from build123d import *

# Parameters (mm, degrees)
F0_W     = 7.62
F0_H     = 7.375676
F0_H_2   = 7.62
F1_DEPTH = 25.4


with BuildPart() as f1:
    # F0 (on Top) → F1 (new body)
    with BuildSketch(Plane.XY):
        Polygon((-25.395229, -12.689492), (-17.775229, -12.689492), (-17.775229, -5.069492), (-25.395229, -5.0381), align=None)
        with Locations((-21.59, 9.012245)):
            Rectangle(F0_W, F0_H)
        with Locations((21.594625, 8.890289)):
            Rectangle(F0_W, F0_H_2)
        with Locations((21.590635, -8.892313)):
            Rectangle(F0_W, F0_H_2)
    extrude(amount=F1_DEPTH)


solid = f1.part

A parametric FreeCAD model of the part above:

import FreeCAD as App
import Part
import Sketcher
from FreeCAD import Vector
Q = App.Units.Quantity

doc = App.newDocument("Part")
params = doc.addObject("Spreadsheet::Sheet", "Params")
for row, (alias, value) in enumerate([
    ("sketch1_width", "0.3 in"),
    ("pad1_length", "1 in"),
], start=1):
    params.set(f"A{row}", alias)
    params.set(f"B{row}", "=" + value)
    params.setAlias(f"B{row}", alias)

body = doc.addObject("PartDesign::Body", "Body")
body.AllowCompound = True

# Sketch on XY plane
sketch1 = body.newObject("Sketcher::SketchObject", "Sketch")
sketch1.AttachmentSupport = (doc.getObject("XY_Plane"), [""])
sketch1.MapMode = "FlatFace"
sketch1.addGeometry([
    Part.LineSegment(Vector(-25, -13, 0), Vector(-18, -13, 0)),  # 0
    Part.LineSegment(Vector(-18, -13, 0), Vector(-18, -5, 0)),  # 1
    Part.LineSegment(Vector(-18, -5, 0), Vector(-25, -5, 0)),  # 2
    Part.LineSegment(Vector(-25, -5, 0), Vector(-25, -13, 0)),  # 3
    Part.LineSegment(Vector(-25, 13, 0), Vector(-25, 5, 0)),  # 4
    Part.LineSegment(Vector(-25, 5, 0), Vector(-18, 5, 0)),  # 5
    Part.LineSegment(Vector(-18, 5, 0), Vector(-18, 13, 0)),  # 6
    Part.LineSegment(Vector(-18, 13, 0), Vector(-25, 13, 0)),  # 7
    Part.LineSegment(Vector(18, 13, 0), Vector(18, 5, 0)),  # 8
    Part.LineSegment(Vector(18, 5, 0), Vector(25, 5, 0)),  # 9
    Part.LineSegment(Vector(25, 5, 0), Vector(25, 13, 0)),  # 10
    Part.LineSegment(Vector(25, 13, 0), Vector(18, 13, 0)),  # 11
    Part.LineSegment(Vector(18, -5, 0), Vector(18, -13, 0)),  # 12
    Part.LineSegment(Vector(18, -13, 0), Vector(25, -13, 0)),  # 13
    Part.LineSegment(Vector(25, -13, 0), Vector(25, -5, 0)),  # 14
    Part.LineSegment(Vector(25, -5, 0), Vector(18, -5, 0)),  # 15
], False)
sketch1.addConstraint([
    Sketcher.Constraint("Coincident", 0, 2, 1, 1),
    Sketcher.Constraint("Coincident", 1, 2, 2, 1),
    Sketcher.Constraint("Coincident", 2, 2, 3, 1),
    Sketcher.Constraint("Coincident", 3, 2, 0, 1),
    Sketcher.Constraint("Coincident", 4, 2, 5, 1),
    Sketcher.Constraint("Coincident", 5, 2, 6, 1),
    Sketcher.Constraint("Coincident", 6, 2, 7, 1),
    Sketcher.Constraint("Coincident", 7, 2, 4, 1),
    Sketcher.Constraint("Coincident", 8, 2, 9, 1),
    Sketcher.Constraint("Coincident", 9, 2, 10, 1),
    Sketcher.Constraint("Coincident", 10, 2, 11, 1),
    Sketcher.Constraint("Coincident", 11, 2, 8, 1),
    Sketcher.Constraint("Coincident", 12, 2, 13, 1),
    Sketcher.Constraint("Coincident", 13, 2, 14, 1),
    Sketcher.Constraint("Coincident", 14, 2, 15, 1),
    Sketcher.Constraint("Coincident", 15, 2, 12, 1),
    Sketcher.Constraint("Horizontal", 0),
    Sketcher.Constraint("Vertical", 1),
    Sketcher.Constraint("Vertical", 3),
    Sketcher.Constraint("Vertical", 4),
    Sketcher.Constraint("Horizontal", 5),
    Sketcher.Constraint("Vertical", 6),
    Sketcher.Constraint("Horizontal", 7),
    Sketcher.Constraint("Vertical", 8),
    Sketcher.Constraint("Horizontal", 9),
    Sketcher.Constraint("Vertical", 10),
    Sketcher.Constraint("Horizontal", 11),
    Sketcher.Constraint("Vertical", 12),
    Sketcher.Constraint("Horizontal", 13),
    Sketcher.Constraint("Vertical", 14),
    Sketcher.Constraint("Horizontal", 15),
    Sketcher.Constraint("Equal", 0, 5),
    Sketcher.Constraint("Equal", 7, 9),
    Sketcher.Constraint("Equal", 11, 13),
    Sketcher.Constraint("Equal", 15, 1),
    Sketcher.Constraint("Equal", 1, 8),
    Sketcher.Constraint("Equal", 10, 12),
    Sketcher.Constraint("DistanceX", 0, 1, 0, 2, Q("0.3 in")),
    Sketcher.Constraint("DistanceX", 4, 2, -1, 1, Q("1 in")),
    Sketcher.Constraint("DistanceY", 3, 2, 3, 1, Q("7.651392 mm")),
    Sketcher.Constraint("DistanceY", 2, 2, -1, 1, Q("5.0381 mm")),
    Sketcher.Constraint("DistanceY", 1, 2, 4, 2, Q("10.393899 mm")),
    Sketcher.Constraint("DistanceY", 4, 2, 4, 1, Q("7.375676 mm")),
    Sketcher.Constraint("DistanceX", 0, 2, -1, 1, Q("17.775229 mm")),
    Sketcher.Constraint("DistanceY", -1, 1, 8, 2, Q("5.080289 mm")),
    Sketcher.Constraint("DistanceX", 12, 2, 8, 2, Q("0.00399 mm")),
    Sketcher.Constraint("DistanceY", 12, 2, 0, 2, Q("0.012821 mm")),
    Sketcher.Constraint("DistanceX", -1, 1, 8, 2, Q("17.784625 mm")),
])
sketch1.setExpression("Constraints[37]", "Params.sketch1_width")
pad1 = body.newObject("PartDesign::Pad", "Pad")
pad1.Profile = sketch1
pad1.setExpression("Length", "Params.pad1_length")

doc.recompute()
